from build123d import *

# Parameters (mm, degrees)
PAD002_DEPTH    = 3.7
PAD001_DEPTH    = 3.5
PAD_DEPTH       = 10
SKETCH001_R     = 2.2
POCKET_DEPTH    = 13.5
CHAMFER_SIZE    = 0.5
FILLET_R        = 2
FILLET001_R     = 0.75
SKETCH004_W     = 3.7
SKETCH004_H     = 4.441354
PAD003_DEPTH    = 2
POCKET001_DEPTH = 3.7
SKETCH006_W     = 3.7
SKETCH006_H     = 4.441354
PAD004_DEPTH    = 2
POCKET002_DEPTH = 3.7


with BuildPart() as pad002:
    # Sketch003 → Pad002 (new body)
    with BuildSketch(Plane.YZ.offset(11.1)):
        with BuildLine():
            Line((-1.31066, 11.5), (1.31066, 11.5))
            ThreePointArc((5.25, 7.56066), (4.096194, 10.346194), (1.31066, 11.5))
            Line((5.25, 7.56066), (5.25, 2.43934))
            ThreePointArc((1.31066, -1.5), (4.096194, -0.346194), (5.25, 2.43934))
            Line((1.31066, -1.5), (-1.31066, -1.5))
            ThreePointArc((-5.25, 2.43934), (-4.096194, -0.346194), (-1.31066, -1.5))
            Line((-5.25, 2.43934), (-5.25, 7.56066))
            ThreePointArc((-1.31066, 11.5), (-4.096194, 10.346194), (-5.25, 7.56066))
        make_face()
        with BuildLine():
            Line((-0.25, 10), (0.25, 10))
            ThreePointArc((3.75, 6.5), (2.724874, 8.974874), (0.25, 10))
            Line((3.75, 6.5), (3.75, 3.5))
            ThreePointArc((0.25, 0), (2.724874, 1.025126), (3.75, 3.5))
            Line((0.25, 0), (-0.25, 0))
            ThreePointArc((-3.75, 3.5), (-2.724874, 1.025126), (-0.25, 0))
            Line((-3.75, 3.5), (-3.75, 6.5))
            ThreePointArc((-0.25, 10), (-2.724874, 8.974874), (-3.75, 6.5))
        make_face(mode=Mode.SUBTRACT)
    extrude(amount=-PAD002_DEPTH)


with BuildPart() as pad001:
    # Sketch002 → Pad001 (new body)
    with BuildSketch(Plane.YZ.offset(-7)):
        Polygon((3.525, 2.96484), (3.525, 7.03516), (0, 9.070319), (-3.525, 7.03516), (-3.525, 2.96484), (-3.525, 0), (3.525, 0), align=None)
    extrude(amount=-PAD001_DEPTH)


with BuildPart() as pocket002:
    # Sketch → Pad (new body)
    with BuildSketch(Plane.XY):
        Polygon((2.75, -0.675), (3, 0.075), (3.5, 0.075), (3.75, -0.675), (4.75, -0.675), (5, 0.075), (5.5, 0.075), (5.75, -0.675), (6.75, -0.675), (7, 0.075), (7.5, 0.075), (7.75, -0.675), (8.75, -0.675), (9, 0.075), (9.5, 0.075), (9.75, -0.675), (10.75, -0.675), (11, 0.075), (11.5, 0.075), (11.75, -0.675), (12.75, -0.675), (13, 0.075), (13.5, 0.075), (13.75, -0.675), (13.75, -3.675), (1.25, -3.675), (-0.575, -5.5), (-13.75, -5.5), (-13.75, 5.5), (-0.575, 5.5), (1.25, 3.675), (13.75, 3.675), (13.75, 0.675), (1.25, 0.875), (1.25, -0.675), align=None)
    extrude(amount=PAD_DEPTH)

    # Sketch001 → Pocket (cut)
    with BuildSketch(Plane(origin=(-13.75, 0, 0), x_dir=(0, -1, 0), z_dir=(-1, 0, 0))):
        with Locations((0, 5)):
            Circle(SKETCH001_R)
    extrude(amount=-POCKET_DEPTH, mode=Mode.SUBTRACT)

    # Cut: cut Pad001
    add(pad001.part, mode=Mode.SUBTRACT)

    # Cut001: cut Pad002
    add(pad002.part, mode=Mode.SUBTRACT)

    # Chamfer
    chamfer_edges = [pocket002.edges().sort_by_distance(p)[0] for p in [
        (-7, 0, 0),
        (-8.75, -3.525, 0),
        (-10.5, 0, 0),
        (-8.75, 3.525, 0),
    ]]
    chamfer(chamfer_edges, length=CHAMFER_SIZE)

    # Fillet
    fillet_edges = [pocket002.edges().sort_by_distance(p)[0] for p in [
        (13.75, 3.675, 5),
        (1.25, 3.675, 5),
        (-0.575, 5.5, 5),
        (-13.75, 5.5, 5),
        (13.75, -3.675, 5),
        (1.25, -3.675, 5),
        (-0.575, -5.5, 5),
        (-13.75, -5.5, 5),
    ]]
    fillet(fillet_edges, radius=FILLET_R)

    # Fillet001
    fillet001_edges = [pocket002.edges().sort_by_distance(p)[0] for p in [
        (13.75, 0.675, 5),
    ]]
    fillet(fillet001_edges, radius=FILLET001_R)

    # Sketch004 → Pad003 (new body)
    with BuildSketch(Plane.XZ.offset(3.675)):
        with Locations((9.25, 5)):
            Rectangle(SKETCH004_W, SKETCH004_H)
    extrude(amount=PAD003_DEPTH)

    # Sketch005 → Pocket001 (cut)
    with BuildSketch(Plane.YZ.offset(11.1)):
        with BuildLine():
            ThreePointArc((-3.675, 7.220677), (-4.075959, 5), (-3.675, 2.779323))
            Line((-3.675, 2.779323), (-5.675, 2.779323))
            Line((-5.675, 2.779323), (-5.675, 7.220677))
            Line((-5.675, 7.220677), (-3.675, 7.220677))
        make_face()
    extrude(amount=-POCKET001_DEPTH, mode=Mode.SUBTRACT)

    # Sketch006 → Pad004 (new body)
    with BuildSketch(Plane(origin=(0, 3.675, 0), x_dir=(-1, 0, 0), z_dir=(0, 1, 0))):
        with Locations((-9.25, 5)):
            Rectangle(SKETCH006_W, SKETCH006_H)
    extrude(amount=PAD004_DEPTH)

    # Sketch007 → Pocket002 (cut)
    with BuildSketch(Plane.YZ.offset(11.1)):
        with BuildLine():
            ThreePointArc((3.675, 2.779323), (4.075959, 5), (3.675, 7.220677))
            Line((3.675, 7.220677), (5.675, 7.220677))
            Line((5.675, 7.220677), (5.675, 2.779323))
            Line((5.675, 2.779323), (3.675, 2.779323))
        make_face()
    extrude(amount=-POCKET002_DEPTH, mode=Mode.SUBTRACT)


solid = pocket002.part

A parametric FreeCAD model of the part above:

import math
import FreeCAD as App
import Part
import Sketcher
Q = App.Units.Quantity


def edges_at(feature, points):
    """Names of the edges that pass closest to the given points."""
    edges = feature.Shape.Edges
    near = lambda p: min(range(len(edges)), key=lambda i: edges[i].distToShape(Part.Vertex(*p))[0])
    return sorted({f"Edge{near(p) + 1}" for p in points})

doc = App.newDocument("Part")
params = doc.addObject("Spreadsheet::Sheet", "Params")
for row, (alias, value) in enumerate([
    ("sketch1_radius", "3.499999 mm"),
    ("sketch1_height", "3 mm"),
    ("sketch1_width", "0.5 mm"),
    ("pad1_length", "3.7 mm"),
    ("sketch2_width", "7.05 mm"),
    ("pad2_length", "3.5 mm"),
    ("sketch3_width", "1 mm"),
    ("sketch3_height", "3 mm"),
    ("sketch3_height2", "11 mm"),
    ("sketch3_width2", "1.5 mm"),
    ("sketch3_width3", "12.5 mm"),
    ("pad3_length", "10 mm"),
    ("sketch4_diameter", "4.4 mm"),
    ("pocket1_length", "13.5 mm"),
    ("chamfer_size", "0.5 mm"),
    ("fillet_radius", "2 mm"),
    ("fillet2_radius", "0.75 mm"),
    ("sketch5_width", "3.7 mm"),
    ("pad4_length", "2 mm"),
    ("sketch6_width", "2 mm"),
    ("pocket2_length", "3.7 mm"),
    ("sketch7_width", "3.7 mm"),
    ("pad5_length", "2 mm"),
    ("sketch8_width", "2 mm"),
    ("pocket3_length", "3.7 mm"),
], start=1):
    params.set(f"A{row}", alias)
    params.set(f"B{row}", "=" + value)
    params.setAlias(f"B{row}", alias)

body = doc.addObject("PartDesign::Body", "Body")

# Sketch on YZ plane
sketch1 = body.newObject("Sketcher::SketchObject", "Sketch")
sketch1.AttachmentSupport = (doc.getObject("YZ_Plane"), [""])
sketch1.MapMode = "FlatFace"
sketch1.AttachmentOffset = App.Placement(App.Vector(0, 0, 11.1), App.Rotation())
sketch1.addGeometry(Part.LineSegment(App.Vector(1.31066, 11.5, 0), App.Vector(-1.31066, 11.5, 0)), False)
sketch1.addGeometry(Part.ArcOfCircle(Part.Circle(App.Vector(-1.31066, 7.56066, 0), App.Vector(0, 0, 1), 3.93934), math.radians(90.000001), math.radians(179.999999)), False)
sketch1.addGeometry(Part.LineSegment(App.Vector(-5.25, 7.56066, 0), App.Vector(-5.25, 2.43934, 0)), False)
sketch1.addGeometry(Part.ArcOfCircle(Part.Circle(App.Vector(-1.31066, 2.43934, 0), App.Vector(0, 0, 1), 3.93934), math.radians(-179.999999), math.radians(-90.000001)), False)
sketch1.addGeometry(Part.LineSegment(App.Vector(-1.31066, -1.5, 0), App.Vector(1.31066, -1.5, 0)), False)
sketch1.addGeometry(Part.ArcOfCircle(Part.Circle(App.Vector(1.31066, 2.43934, 0), App.Vector(0, 0, 1), 3.93934), math.radians(-89.999999), math.radians(-0.000001)), False)
sketch1.addGeometry(Part.LineSegment(App.Vector(5.25, 2.43934, 0), App.Vector(5.25, 7.56066, 0)), False)
sketch1.addGeometry(Part.ArcOfCircle(Part.Circle(App.Vector(1.31066, 7.56066, 0), App.Vector(0, 0, 1), 3.93934), math.radians(0.000001), math.radians(89.999999)), False)
sketch1.addGeometry(Part.LineSegment(App.Vector(-0.25, 10, 0), App.Vector(0.25, 10, 0)), False)
sketch1.addGeometry(Part.ArcOfCircle(Part.Circle(App.Vector(0.250001, 6.500001, 0), App.Vector(0, 0, 1), 3.499999), math.radians(-0.000015), math.radians(90.000015)), False)
sketch1.addGeometry(Part.LineSegment(App.Vector(3.75, 6.5, 0), App.Vector(3.75, 3.5, 0)), False)
sketch1.addGeometry(Part.ArcOfCircle(Part.Circle(App.Vector(0.250001, 3.499999, 0), App.Vector(0, 0, 1), 3.499999), math.radians(-90.000015), math.radians(0.000015)), False)
sketch1.addGeometry(Part.LineSegment(App.Vector(0.25, 0, 0), App.Vector(-0.25, 0, 0)), False)
sketch1.addGeometry(Part.ArcOfCircle(Part.Circle(App.Vector(-0.250001, 3.499999, 0), App.Vector(0, 0, 1), 3.499999), math.radians(179.999985), math.radians(270.000015)), False)
sketch1.addGeometry(Part.LineSegment(App.Vector(-3.75, 3.5, 0), App.Vector(-3.75, 6.5, 0)), False)
sketch1.addGeometry(Part.ArcOfCircle(Part.Circle(App.Vector(-0.250001, 6.500001, 0), App.Vector(0, 0, 1), 3.499999), math.radians(89.999985), math.radians(180.000015)), False)
sketch1.addConstraint(Sketcher.Constraint("Tangent", 0, 2, 1, 1))
sketch1.addConstraint(Sketcher.Constraint("Tangent", 1, 2, 2, 1))
sketch1.addConstraint(Sketcher.Constraint("Tangent", 2, 2, 3, 1))
sketch1.addConstraint(Sketcher.Constraint("Tangent", 3, 2, 4, 1))
sketch1.addConstraint(Sketcher.Constraint("Tangent", 4, 2, 5, 1))
sketch1.addConstraint(Sketcher.Constraint("Tangent", 5, 2, 6, 1))
sketch1.addConstraint(Sketcher.Constraint("Tangent", 6, 2, 7, 1))
sketch1.addConstraint(Sketcher.Constraint("Tangent", 7, 2, 0, 1))
sketch1.addConstraint(Sketcher.Constraint("Tangent", 8, 2, 9, 2))
sketch1.addConstraint(Sketcher.Constraint("Tangent", 9, 1, 10, 1))
sketch1.addConstraint(Sketcher.Constraint("Tangent", 10, 2, 11, 2))
sketch1.addConstraint(Sketcher.Constraint("Tangent", 11, 1, 12, 1))
sketch1.addConstraint(Sketcher.Constraint("Tangent", 12, 2, 13, 2))
sketch1.addConstraint(Sketcher.Constraint("Tangent", 13, 1, 14, 1))
sketch1.addConstraint(Sketcher.Constraint("Tangent", 14, 2, 15, 2))
sketch1.addConstraint(Sketcher.Constraint("Tangent", 15, 1, 8, 1))
sketch1.addConstraint(Sketcher.Constraint("Horizontal", 0))
sketch1.addConstraint(Sketcher.Constraint("Vertical", 2))
sketch1.addConstraint(Sketcher.Constraint("Horizontal", 4))
sketch1.addConstraint(Sketcher.Constraint("Vertical", 6))
sketch1.addConstraint(Sketcher.Constraint("Horizontal", 8))
sketch1.addConstraint(Sketcher.Constraint("Vertical", 10))
sketch1.addConstraint(Sketcher.Constraint("Horizontal", 12))
sketch1.addConstraint(Sketcher.Constraint("Vertical", 14))
sketch1.addConstraint(Sketcher.Constraint("Equal", 1, 3))
sketch1.addConstraint(Sketcher.Constraint("Equal", 3, 5))
sketch1.addConstraint(Sketcher.Constraint("Equal", 5, 7))
sketch1.addConstraint(Sketcher.Constraint("Equal", 9, 11))
sketch1.addConstraint(Sketcher.Constraint("Equal", 11, 13))
sketch1.addConstraint(Sketcher.Constraint("Equal", 13, 15))
sketch1.addConstraint(Sketcher.Constraint("Symmetric", 11, 1, 12, 2, -1, 1))
sketch1.addConstraint(Sketcher.Constraint("Radius", 9, Q("3.499999 mm")))
sketch1.addConstraint(Sketcher.Constraint("DistanceY", 10, 2, 10, 1, Q("3 mm")))
sketch1.addConstraint(Sketcher.Constraint("DistanceX", 8, 1, 8, 2, Q("0.5 mm")))
sketch1.addConstraint(Sketcher.Constraint("DistanceY", 15, 3, 0, 2, Q("4.999999 mm")))
sketch1.addConstraint(Sketcher.Constraint("DistanceX", 1, 2, 15, 3, Q("4.999999 mm")))
sketch1.addConstraint(Sketcher.Constraint("DistanceY", 3, 2, 13, 3, Q("4.999999 mm")))
sketch1.addConstraint(Sketcher.Constraint("DistanceX", 11, 3, 5, 2, Q("4.999999 mm")))
sketch1.addConstraint(Sketcher.Constraint("Radius", 1, Q("3.93934 mm")))
sketch1.setExpression("Constraints[31]", "Params.sketch1_radius")
sketch1.setExpression("Constraints[32]", "Params.sketch1_height")
sketch1.setExpression("Constraints[33]", "Params.sketch1_width")
pad1 = body.newObject("PartDesign::Pad", "Pad")
pad1.Profile = sketch1
pad1.setExpression("Length", "Params.pad1_length")
pad1.Reversed = True
body2 = doc.addObject("PartDesign::Body", "Body001")

# Sketch on YZ plane
sketch2 = body2.newObject("Sketcher::SketchObject", "Sketch001")
sketch2.AttachmentSupport = (doc.getObject("YZ_Plane001"), [""])
sketch2.MapMode = "FlatFace"
sketch2.AttachmentOffset = App.Placement(App.Vector(0, 0, -7), App.Rotation())
sketch2.addGeometry(Part.LineSegment(App.Vector(3.525, 7.03516, 0), App.Vector(0, 9.070319, 0)), False)
sketch2.addGeometry(Part.LineSegment(App.Vector(0, 9.070319, 0), App.Vector(-3.525, 7.03516, 0)), False)
sketch2.addGeometry(Part.LineSegment(App.Vector(-3.525, 7.03516, 0), App.Vector(-3.525, 0, 0)), False)
sketch2.addGeometry(Part.LineSegment(App.Vector(-3.525, 0, 0), App.Vector(3.525, 0, 0)), False)
sketch2.addGeometry(Part.LineSegment(App.Vector(3.525, 0, 0), App.Vector(3.525, 7.03516, 0)), False)
sketch2.addConstraint(Sketcher.Constraint("Coincident", 0, 2, 1, 1))
sketch2.addConstraint(Sketcher.Constraint("Coincident", 1, 2, 2, 1))
sketch2.addConstraint(Sketcher.Constraint("Coincident", 2, 2, 3, 1))
sketch2.addConstraint(Sketcher.Constraint("Coincident", 3, 2, 4, 1))
sketch2.addConstraint(Sketcher.Constraint("Coincident", 4, 2, 0, 1))
sketch2.addConstraint(Sketcher.Constraint("Vertical", 2))
sketch2.addConstraint(Sketcher.Constraint("Horizontal", 3))
sketch2.addConstraint(Sketcher.Constraint("Vertical", 4))
sketch2.addConstraint(Sketcher.Constraint("Symmetric", 2, 2, 3, 2, -1, 1))
sketch2.addConstraint(Sketcher.Constraint("PointOnObject", 0, 2, -2))
sketch2.addConstraint(Sketcher.Constraint("Horizontal", 1, 2, 4, 2))
sketch2.addConstraint(Sketcher.Constraint("Angle", 0, Q("150.000009 deg")))
sketch2.addConstraint(Sketcher.Constraint("DistanceX", 3, 1, 3, 2, Q("7.05 mm")))
sketch2.addConstraint(Sketcher.Constraint("DistanceY", 2, 2, 2, 1, Q("7.03516 mm")))
sketch2.setExpression("Constraints[12]", "Params.sketch2_width")
pad2 = body2.newObject("PartDesign::Pad", "Pad001")
pad2.Profile = sketch2
pad2.setExpression("Length", "Params.pad2_length")
pad2.Reversed = True
body3 = doc.addObject("PartDesign::Body", "Body002")

# Sketch on XY plane
sketch3 = body3.newObject("Sketcher::SketchObject", "Sketch002")
sketch3.AttachmentSupport = (doc.getObject("XY_Plane002"), [""])
sketch3.MapMode = "FlatFace"
sketch3.addGeometry(Part.LineSegment(App.Vector(3, 0.075, 0), App.Vector(2.75, -0.675, 0)), False)
sketch3.addGeometry(Part.LineSegment(App.Vector(2.75, -0.675, 0), App.Vector(1.25, -0.675, 0)), False)
sketch3.addGeometry(Part.LineSegment(App.Vector(1.25, -0.675, 0), App.Vector(1.25, 0.875, 0)), False)
sketch3.addGeometry(Part.LineSegment(App.Vector(1.25, 0.875, 0), App.Vector(13.75, 0.675, 0)), False)
sketch3.addGeometry(Part.LineSegment(App.Vector(13.75, 0.675, 0), App.Vector(13.75, 3.675, 0)), False)
sketch3.addGeometry(Part.LineSegment(App.Vector(13.75, 3.675, 0), App.Vector(1.25, 3.675, 0)), False)
sketch3.addGeometry(Part.LineSegment(App.Vector(1.25, 3.675, 0), App.Vector(-0.575, 5.5, 0)), False)
sketch3.addGeometry(Part.LineSegment(App.Vector(-0.575, 5.5, 0), App.Vector(-13.75, 5.5, 0)), False)
sketch3.addGeometry(Part.LineSegment(App.Vector(-13.75, 5.5, 0), App.Vector(-13.75, -5.5, 0)), False)
sketch3.addGeometry(Part.LineSegment(App.Vector(-13.75, -5.5, 0), App.Vector(-0.575, -5.5, 0)), False)
sketch3.addGeometry(Part.LineSegment(App.Vector(-0.575, -5.5, 0), App.Vector(1.25, -3.675, 0)), False)
sketch3.addGeometry(Part.LineSegment(App.Vector(1.25, -3.675, 0), App.Vector(13.75, -3.675, 0)), False)
sketch3.addGeometry(Part.LineSegment(App.Vector(13.75, -3.675, 0), App.Vector(13.75, -0.675, 0)), False)
sketch3.addGeometry(Part.LineSegment(App.Vector(13.75, -0.675, 0), App.Vector(13.5, 0.075, 0)), False)
sketch3.addGeometry(Part.LineSegment(App.Vector(13.5, 0.075, 0), App.Vector(13, 0.075, 0)), False)
sketch3.addGeometry(Part.LineSegment(App.Vector(13, 0.075, 0), App.Vector(12.75, -0.675, 0)), False)
sketch3.addGeometry(Part.LineSegment(App.Vector(12.75, -0.675, 0), App.Vector(11.75, -0.675, 0)), False)
sketch3.addGeometry(Part.LineSegment(App.Vector(11.75, -0.675, 0), App.Vector(11.5, 0.075, 0)), False)
sketch3.addGeometry(Part.LineSegment(App.Vector(11.5, 0.075, 0), App.Vector(11, 0.075, 0)), False)
sketch3.addGeometry(Part.LineSegment(App.Vector(11, 0.075, 0), App.Vector(10.75, -0.675, 0)), False)
sketch3.addGeometry(Part.LineSegment(App.Vector(10.75, -0.675, 0), App.Vector(9.75, -0.675, 0)), False)
sketch3.addGeometry(Part.LineSegment(App.Vector(9.75, -0.675, 0), App.Vector(9.5, 0.075, 0)), False)
sketch3.addGeometry(Part.LineSegment(App.Vector(9.5, 0.075, 0), App.Vector(9, 0.075, 0)), False)
sketch3.addGeometry(Part.LineSegment(App.Vector(9, 0.075, 0), App.Vector(8.75, -0.675, 0)), False)
sketch3.addGeometry(Part.LineSegment(App.Vector(8.75, -0.675, 0), App.Vector(7.75, -0.675, 0)), False)
sketch3.addGeometry(Part.LineSegment(App.Vector(7.75, -0.675, 0), App.Vector(7.5, 0.075, 0)), False)
sketch3.addGeometry(Part.LineSegment(App.Vector(7.5, 0.075, 0), App.Vector(7, 0.075, 0)), False)
sketch3.addGeometry(Part.LineSegment(App.Vector(7, 0.075, 0), App.Vector(6.75, -0.675, 0)), False)
sketch3.addGeometry(Part.LineSegment(App.Vector(6.75, -0.675, 0), App.Vector(5.75, -0.675, 0)), False)
sketch3.addGeometry(Part.LineSegment(App.Vector(5.75, -0.675, 0), App.Vector(5.5, 0.075, 0)), False)
sketch3.addGeometry(Part.LineSegment(App.Vector(5.5, 0.075, 0), App.Vector(5, 0.075, 0)), False)
sketch3.addGeometry(Part.LineSegment(App.Vector(5, 0.075, 0), App.Vector(4.75, -0.675, 0)), False)
sketch3.addGeometry(Part.LineSegment(App.Vector(4.75, -0.675, 0), App.Vector(3.75, -0.675, 0)), False)
sketch3.addGeometry(Part.LineSegment(App.Vector(3.75, -0.675, 0), App.Vector(3.5, 0.075, 0)), False)
sketch3.addGeometry(Part.LineSegment(App.Vector(3.5, 0.075, 0), App.Vector(3, 0.075, 0)), False)
sketch3.addConstraint(Sketcher.Constraint("Coincident", 0, 2, 1, 1))
sketch3.addConstraint(Sketcher.Constraint("Coincident", 1, 2, 2, 1))
sketch3.addConstraint(Sketcher.Constraint("Coincident", 2, 2, 3, 1))
sketch3.addConstraint(Sketcher.Constraint("Coincident", 3, 2, 4, 1))
sketch3.addConstraint(Sketcher.Constraint("Coincident", 4, 2, 5, 1))
sketch3.addConstraint(Sketcher.Constraint("Coincident", 5, 2, 6, 1))
sketch3.addConstraint(Sketcher.Constraint("Coincident", 6, 2, 7, 1))
sketch3.addConstraint(Sketcher.Constraint("Coincident", 7, 2, 8, 1))
sketch3.addConstraint(Sketcher.Constraint("Coincident", 8, 2, 9, 1))
sketch3.addConstraint(Sketcher.Constraint("Coincident", 9, 2, 10, 1))
sketch3.addConstraint(Sketcher.Constraint("Coincident", 10, 2, 11, 1))
sketch3.addConstraint(Sketcher.Constraint("Coincident", 11, 2, 12, 1))
sketch3.addConstraint(Sketcher.Constraint("Coincident", 12, 2, 13, 1))
sketch3.addConstraint(Sketcher.Constraint("Coincident", 13, 2, 14, 1))
sketch3.addConstraint(Sketcher.Constraint("Coincident", 14, 2, 15, 1))
sketch3.addConstraint(Sketcher.Constraint("Coincident", 15, 2, 16, 1))
sketch3.addConstraint(Sketcher.Constraint("Coincident", 16, 2, 17, 1))
sketch3.addConstraint(Sketcher.Constraint("Coincident", 17, 2, 18, 1))
sketch3.addConstraint(Sketcher.Constraint("Coincident", 18, 2, 19, 1))
sketch3.addConstraint(Sketcher.Constraint("Coincident", 19, 2, 20, 1))
sketch3.addConstraint(Sketcher.Constraint("Coincident", 20, 2, 21, 1))
sketch3.addConstraint(Sketcher.Constraint("Coincident", 21, 2, 22, 1))
sketch3.addConstraint(Sketcher.Constraint("Coincident", 22, 2, 23, 1))
sketch3.addConstraint(Sketcher.Constraint("Coincident", 23, 2, 24, 1))
sketch3.addConstraint(Sketcher.Constraint("Coincident", 24, 2, 25, 1))
sketch3.addConstraint(Sketcher.Constraint("Coincident", 25, 2, 26, 1))
sketch3.addConstraint(Sketcher.Constraint("Coincident", 26, 2, 27, 1))
sketch3.addConstraint(Sketcher.Constraint("Coincident", 27, 2, 28, 1))
sketch3.addConstraint(Sketcher.Constraint("Coincident", 28, 2, 29, 1))
sketch3.addConstraint(Sketcher.Constraint("Coincident", 29, 2, 30, 1))
sketch3.addConstraint(Sketcher.Constraint("Coincident", 30, 2, 31, 1))
sketch3.addConstraint(Sketcher.Constraint("Coincident", 31, 2, 32, 1))
sketch3.addConstraint(Sketcher.Constraint("Coincident", 32, 2, 33, 1))
sketch3.addConstraint(Sketcher.Constraint("Coincident", 33, 2, 34, 1))
sketch3.addConstraint(Sketcher.Constraint("Coincident", 34, 2, 0, 1))
sketch3.addConstraint(Sketcher.Constraint("Horizontal", 1))
sketch3.addConstraint(Sketcher.Constraint("Vertical", 2))
sketch3.addConstraint(Sketcher.Constraint("Vertical", 4))
sketch3.addConstraint(Sketcher.Constraint("Horizontal", 5))
sketch3.addConstraint(Sketcher.Constraint("Horizontal", 7))
sketch3.addConstraint(Sketcher.Constraint("Vertical", 8))
sketch3.addConstraint(Sketcher.Constraint("Horizontal", 9))
sketch3.addConstraint(Sketcher.Constraint("Horizontal", 11))
sketch3.addConstraint(Sketcher.Constraint("Vertical", 12))
sketch3.addConstraint(Sketcher.Constraint("Horizontal", 14))
sketch3.addConstraint(Sketcher.Constraint("Horizontal", 16))
sketch3.addConstraint(Sketcher.Constraint("Horizontal", 18))
sketch3.addConstraint(Sketcher.Constraint("Horizontal", 20))
sketch3.addConstraint(Sketcher.Constraint("Horizontal", 22))
sketch3.addConstraint(Sketcher.Constraint("Horizontal", 24))
sketch3.addConstraint(Sketcher.Constraint("Horizontal", 26))
sketch3.addConstraint(Sketcher.Constraint("Horizontal", 28))
sketch3.addConstraint(Sketcher.Constraint("Horizontal", 30))
sketch3.addConstraint(Sketcher.Constraint("Horizontal", 32))
sketch3.addConstraint(Sketcher.Constraint("Horizontal", 34))
sketch3.addConstraint(Sketcher.Constraint("Symmetric", 6, 2, 9, 2, -1))
sketch3.addConstraint(Sketcher.Constraint("Symmetric", 5, 2, 10, 2, -1))
sketch3.addConstraint(Sketcher.Constraint("Symmetric", 3, 2, 12, 2, -1))
sketch3.addConstraint(Sketcher.Constraint("Perpendicular", 6, 10))
sketch3.addConstraint(Sketcher.Constraint("Parallel", 0, 15))
sketch3.addConstraint(Sketcher.Constraint("Parallel", 13, 17))
sketch3.addConstraint(Sketcher.Constraint("Parallel", 15, 19))
sketch3.addConstraint(Sketcher.Constraint("Parallel", 17, 21))
sketch3.addConstraint(Sketcher.Constraint("Parallel", 19, 23))
sketch3.addConstraint(Sketcher.Constraint("Parallel", 21, 25))
sketch3.addConstraint(Sketcher.Constraint("Parallel", 23, 27))
sketch3.addConstraint(Sketcher.Constraint("Parallel", 25, 29))
sketch3.addConstraint(Sketcher.Constraint("Parallel", 27, 31))
sketch3.addConstraint(Sketcher.Constraint("Parallel", 29, 33))
sketch3.addConstraint(Sketcher.Constraint("Horizontal", 1, 2, 12, 2))
sketch3.addConstraint(Sketcher.Constraint("Horizontal", 12, 2, 15, 2))
sketch3.addConstraint(Sketcher.Constraint("Horizontal", 14, 2, 17, 2))
sketch3.addConstraint(Sketcher.Constraint("Horizontal", 16, 2, 19, 2))
sketch3.addConstraint(Sketcher.Constraint("Horizontal", 18, 2, 21, 2))
sketch3.addConstraint(Sketcher.Constraint("Horizontal", 20, 2, 23, 2))
sketch3.addConstraint(Sketcher.Constraint("Horizontal", 22, 2, 25, 2))
sketch3.addConstraint(Sketcher.Constraint("Horizontal", 24, 2, 27, 2))
sketch3.addConstraint(Sketcher.Constraint("Horizontal", 26, 2, 29, 2))
sketch3.addConstraint(Sketcher.Constraint("Horizontal", 28, 2, 31, 2))
sketch3.addConstraint(Sketcher.Constraint("Horizontal", 30, 2, 33, 2))
sketch3.addConstraint(Sketcher.Constraint("Vertical", 2, 2, 5, 2))
sketch3.addConstraint(Sketcher.Constraint("Equal", 14, 18))
sketch3.addConstraint(Sketcher.Constraint("Equal", 16, 20))
sketch3.addConstraint(Sketcher.Constraint("Equal", 18, 22))
sketch3.addConstraint(Sketcher.Constraint("Equal", 20, 24))
sketch3.addConstraint(Sketcher.Constraint("Equal", 22, 26))
sketch3.addConstraint(Sketcher.Constraint("Equal", 24, 28))
sketch3.addConstraint(Sketcher.Constraint("Equal", 26, 30))
sketch3.addConstraint(Sketcher.Constraint("Equal", 28, 32))
sketch3.addConstraint(Sketcher.Constraint("Equal", 30, 34))
sketch3.addConstraint(Sketcher.Constraint("Equal", 0, 13))
sketch3.addConstraint(Sketcher.Constraint("DistanceX", 16, 2, 16, 1, Q("1 mm")))
sketch3.addConstraint(Sketcher.Constraint("DistanceY", 4, 1, 4, 2, Q("3 mm")))
sketch3.addConstraint(Sketcher.Constraint("DistanceY", 8, 2, 8, 1, Q("11 mm")))
sketch3.addConstraint(Sketcher.Constraint("DistanceX", 1, 2, 1, 1, Q("1.5 mm")))
sketch3.addConstraint(Sketcher.Constraint("DistanceX", 5, 2, 5, 1, Q("12.5 mm")))
sketch3.addConstraint(Sketcher.Constraint("DistanceX", 14, 2, 14, 1, Q("0.5 mm")))
sketch3.addConstraint(Sketcher.Constraint("DistanceX", -1, 1, 14, 2, Q("13 mm")))
sketch3.addConstraint(Sketcher.Constraint("DistanceX", 7, 2, 5, 2, Q("15 mm")))
sketch3.addConstraint(Sketcher.Constraint("DistanceY", 2, 1, 2, 2, Q("1.55 mm")))
sketch3.addConstraint(Sketcher.Constraint("DistanceY", 3, 2, 2, 2, Q("0.2 mm")))
sketch3.addConstraint(Sketcher.Constraint("DistanceY", 13, 2, 3, 2, Q("0.6 mm")))
sketch3.setExpression("Constraints[91]", "Params.sketch3_width")
sketch3.setExpression("Constraints[92]", "Params.sketch3_height")
sketch3.setExpression("Constraints[93]", "Params.sketch3_height2")
sketch3.setExpression("Constraints[94]", "Params.sketch3_width2")
sketch3.setExpression("Constraints[95]", "Params.sketch3_width3")
pad3 = body3.newObject("PartDesign::Pad", "Pad002")
pad3.Profile = sketch3
pad3.setExpression("Length", "Params.pad3_length")

# Sketch on YZ plane
sketch4 = body3.newObject("Sketcher::SketchObject", "Sketch003")
sketch4.AttachmentSupport = (doc.getObject("YZ_Plane002"), [""])
sketch4.MapMode = "FlatFace"
sketch4.AttachmentOffset = App.Placement(App.Vector(0, 0, -13.75), App.Rotation())
sketch4.addGeometry(Part.Circle(App.Vector(0, 5, 0), App.Vector(0, 0, 1), 2.2), False)
sketch4.addConstraint(Sketcher.Constraint("PointOnObject", 0, 3, -2))
sketch4.addConstraint(Sketcher.Constraint("Diameter", 0, Q("4.4 mm")))
sketch4.addConstraint(Sketcher.Constraint("DistanceY", -1, 1, 0, 3, Q("5 mm")))
sketch4.setExpression("Constraints[1]", "Params.sketch4_diameter")
pocket1 = body3.newObject("PartDesign::Pocket", "Pocket")
pocket1.Profile = sketch4
pocket1.setExpression("Length", "Params.pocket1_length")
pocket1.Reversed = True
doc.recompute()

boolean = body3.newObject("PartDesign::Boolean", "Boolean")
boolean.Type = "Cut"
boolean.addObjects([body2])
doc.recompute()

boolean2 = body3.newObject("PartDesign::Boolean", "Boolean001")
boolean2.Type = "Cut"
boolean2.addObjects([body])
doc.recompute()

chamfer = body3.newObject("PartDesign::Chamfer", "Chamfer")
chamfer.Base = (boolean2, edges_at(boolean2, [
    (-7, 0, 0),
    (-8.75, -3.525, 0),
    (-10.5, 0, 0),
    (-8.75, 3.525, 0),
]))
chamfer.setExpression("Size", "Params.chamfer_size")
doc.recompute()

fillet = body3.newObject("PartDesign::Fillet", "Fillet")
fillet.Base = (chamfer, edges_at(chamfer, [
    (13.75, 3.675, 5),
    (1.25, 3.675, 5),
    (-0.575, 5.5, 5),
    (-13.75, 5.5, 5),
    (13.75, -3.675, 5),
    (1.25, -3.675, 5),
    (-0.575, -5.5, 5),
    (-13.75, -5.5, 5),
]))
fillet.setExpression("Radius", "Params.fillet_radius")
doc.recompute()

fillet2 = body3.newObject("PartDesign::Fillet", "Fillet001")
fillet2.Base = (fillet, edges_at(fillet, [(13.75, 0.675, 5)]))
fillet2.setExpression("Radius", "Params.fillet2_radius")

# Sketch on XZ plane
sketch5 = body3.newObject("Sketcher::SketchObject", "Sketch004")
sketch5.AttachmentSupport = (doc.getObject("XZ_Plane002"), [""])
sketch5.MapMode = "FlatFace"
sketch5.AttachmentOffset = App.Placement(App.Vector(0, 0, 3.675), App.Rotation())
sketch5.addGeometry(Part.LineSegment(App.Vector(7.4, 7.220677, 0), App.Vector(7.4, 2.779323, 0)), False)
sketch5.addGeometry(Part.LineSegment(App.Vector(7.4, 2.779323, 0), App.Vector(11.1, 2.779323, 0)), False)
sketch5.addGeometry(Part.LineSegment(App.Vector(11.1, 2.779323, 0), App.Vector(11.1, 7.220677, 0)), False)
sketch5.addGeometry(Part.LineSegment(App.Vector(11.1, 7.220677, 0), App.Vector(7.4, 7.220677, 0)), False)
sketch5.addConstraint(Sketcher.Constraint("Coincident", 0, 2, 1, 1))
sketch5.addConstraint(Sketcher.Constraint("Coincident", 1, 2, 2, 1))
sketch5.addConstraint(Sketcher.Constraint("Coincident", 2, 2, 3, 1))
sketch5.addConstraint(Sketcher.Constraint("Coincident", 3, 2, 0, 1))
sketch5.addConstraint(Sketcher.Constraint("Vertical", 0))
sketch5.addConstraint(Sketcher.Constraint("Horizontal", 1))
sketch5.addConstraint(Sketcher.Constraint("Vertical", 2))
sketch5.addConstraint(Sketcher.Constraint("Horizontal", 3))
sketch5.addConstraint(Sketcher.Constraint("DistanceX", 1, 1, 1, 2, Q("3.7 mm")))
sketch5.addConstraint(Sketcher.Constraint("DistanceX", -1, 1, 0, 2, Q("7.4 mm")))
sketch5.addConstraint(Sketcher.Constraint("DistanceY", 0, 2, 0, 1, Q("4.441354 mm")))
sketch5.addConstraint(Sketcher.Constraint("DistanceY", -1, 1, 0, 2, Q("2.779323 mm")))
sketch5.setExpression("Constraints[8]", "Params.sketch5_width")
pad4 = body3.newObject("PartDesign::Pad", "Pad003")
pad4.Profile = sketch5
pad4.setExpression("Length", "Params.pad4_length")

# Sketch on YZ plane
sketch6 = body3.newObject("Sketcher::SketchObject", "Sketch005")
sketch6.AttachmentSupport = (doc.getObject("YZ_Plane002"), [""])
sketch6.MapMode = "FlatFace"
sketch6.AttachmentOffset = App.Placement(App.Vector(0, 0, 11.1), App.Rotation())
sketch6.addGeometry(Part.ArcOfCircle(Part.Circle(App.Vector(2.274035, 5, 0), App.Vector(0, 0, 1), 6.349994), math.radians(159.530223), math.radians(200.469777)), False)
sketch6.addGeometry(Part.LineSegment(App.Vector(-3.675, 7.220677, 0), App.Vector(-5.675, 7.220677, 0)), False)
sketch6.addGeometry(Part.LineSegment(App.Vector(-5.675, 7.220677, 0), App.Vector(-5.675, 2.779323, 0)), False)
sketch6.addGeometry(Part.LineSegment(App.Vector(-5.675, 2.779323, 0), App.Vector(-3.675, 2.779323, 0)), False)
sketch6.addConstraint(Sketcher.Constraint("Coincident", 0, 1, 1, 1))
sketch6.addConstraint(Sketcher.Constraint("Coincident", 1, 2, 2, 1))
sketch6.addConstraint(Sketcher.Constraint("Coincident", 2, 2, 3, 1))
sketch6.addConstraint(Sketcher.Constraint("Coincident", 3, 2, 0, 2))
sketch6.addConstraint(Sketcher.Constraint("Horizontal", 1))
sketch6.addConstraint(Sketcher.Constraint("Vertical", 2))
sketch6.addConstraint(Sketcher.Constraint("Horizontal", 3))
sketch6.addConstraint(Sketcher.Constraint("Vertical", 0, 1, 3, 2))
sketch6.addConstraint(Sketcher.Constraint("DistanceX", 1, 2, 1, 1, Q("2 mm")))
sketch6.addConstraint(Sketcher.Constraint("DistanceY", -1, 1, 0, 3, Q("5 mm")))
sketch6.addConstraint(Sketcher.Constraint("DistanceX", 0, 1, -1, 1, Q("3.675 mm")))
sketch6.addConstraint(Sketcher.Constraint("Radius", 0, Q("6.349994 mm")))
sketch6.addConstraint(Sketcher.Constraint("DistanceY", 2, 2, 2, 1, Q("4.441354 mm")))
sketch6.setExpression("Constraints[8]", "Params.sketch6_width")
pocket2 = body3.newObject("PartDesign::Pocket", "Pocket001")
pocket2.Profile = sketch6
pocket2.setExpression("Length", "Params.pocket2_length")

# Sketch on XZ plane
sketch7 = body3.newObject("Sketcher::SketchObject", "Sketch006")
sketch7.AttachmentSupport = (doc.getObject("XZ_Plane002"), [""])
sketch7.MapMode = "FlatFace"
sketch7.AttachmentOffset = App.Placement(App.Vector(0, 0, -3.675), App.Rotation())
sketch7.addGeometry(Part.LineSegment(App.Vector(11.1, 7.220677, 0), App.Vector(11.1, 2.779323, 0)), False)
sketch7.addGeometry(Part.LineSegment(App.Vector(11.1, 2.779323, 0), App.Vector(7.4, 2.779323, 0)), False)
sketch7.addGeometry(Part.LineSegment(App.Vector(7.4, 2.779323, 0), App.Vector(7.4, 7.220677, 0)), False)
sketch7.addGeometry(Part.LineSegment(App.Vector(7.4, 7.220677, 0), App.Vector(11.1, 7.220677, 0)), False)
sketch7.addConstraint(Sketcher.Constraint("Coincident", 0, 2, 1, 1))
sketch7.addConstraint(Sketcher.Constraint("Coincident", 1, 2, 2, 1))
sketch7.addConstraint(Sketcher.Constraint("Coincident", 2, 2, 3, 1))
sketch7.addConstraint(Sketcher.Constraint("Coincident", 3, 2, 0, 1))
sketch7.addConstraint(Sketcher.Constraint("Vertical", 0))
sketch7.addConstraint(Sketcher.Constraint("Horizontal", 1))
sketch7.addConstraint(Sketcher.Constraint("Vertical", 2))
sketch7.addConstraint(Sketcher.Constraint("Horizontal", 3))
sketch7.addConstraint(Sketcher.Constraint("DistanceX", 1, 2, 1, 1, Q("3.7 mm")))
sketch7.addConstraint(Sketcher.Constraint("DistanceX", -1, 1, 0, 2, Q("11.1 mm")))
sketch7.addConstraint(Sketcher.Constraint("DistanceY", 0, 2, 0, 1, Q("4.441354 mm")))
sketch7.addConstraint(Sketcher.Constraint("DistanceY", -1, 1, 0, 2, Q("2.779323 mm")))
sketch7.setExpression("Constraints[8]", "Params.sketch7_width")
pad5 = body3.newObject("PartDesign::Pad", "Pad004")
pad5.Profile = sketch7
pad5.setExpression("Length", "Params.pad5_length")
pad5.Reversed = True

# Sketch on YZ plane
sketch8 = body3.newObject("Sketcher::SketchObject", "Sketch007")
sketch8.AttachmentSupport = (doc.getObject("YZ_Plane002"), [""])
sketch8.MapMode = "FlatFace"
sketch8.AttachmentOffset = App.Placement(App.Vector(0, 0, 11.1), App.Rotation())
sketch8.addGeometry(Part.ArcOfCircle(Part.Circle(App.Vector(-2.274035, 5, 0), App.Vector(0, 0, 1), 6.349994), math.radians(-20.469777), math.radians(20.469777)), False)
sketch8.addGeometry(Part.LineSegment(App.Vector(3.675, 2.779323, 0), App.Vector(5.675, 2.779323, 0)), False)
sketch8.addGeometry(Part.LineSegment(App.Vector(5.675, 2.779323, 0), App.Vector(5.675, 7.220677, 0)), False)
sketch8.addGeometry(Part.LineSegment(App.Vector(5.675, 7.220677, 0), App.Vector(3.675, 7.220677, 0)), False)
sketch8.addConstraint(Sketcher.Constraint("Coincident", 0, 1, 1, 1))
sketch8.addConstraint(Sketcher.Constraint("Coincident", 1, 2, 2, 1))
sketch8.addConstraint(Sketcher.Constraint("Coincident", 2, 2, 3, 1))
sketch8.addConstraint(Sketcher.Constraint("Coincident", 3, 2, 0, 2))
sketch8.addConstraint(Sketcher.Constraint("Horizontal", 1))
sketch8.addConstraint(Sketcher.Constraint("Vertical", 2))
sketch8.addConstraint(Sketcher.Constraint("Horizontal", 3))
sketch8.addConstraint(Sketcher.Constraint("Vertical", 0, 1, 3, 2))
sketch8.addConstraint(Sketcher.Constraint("DistanceX", 1, 1, 1, 2, Q("2 mm")))
sketch8.addConstraint(Sketcher.Constraint("DistanceY", -1, 1, 0, 3, Q("5 mm")))
sketch8.addConstraint(Sketcher.Constraint("DistanceX", -1, 1, 0, 1, Q("3.675 mm")))
sketch8.addConstraint(Sketcher.Constraint("Radius", 0, Q("6.349994 mm")))
sketch8.addConstraint(Sketcher.Constraint("DistanceY", 2, 1, 2, 2, Q("4.441354 mm")))
sketch8.setExpression("Constraints[8]", "Params.sketch8_width")
pocket3 = body3.newObject("PartDesign::Pocket", "Pocket002")
pocket3.Profile = sketch8
pocket3.setExpression("Length", "Params.pocket3_length")

doc.recompute()
